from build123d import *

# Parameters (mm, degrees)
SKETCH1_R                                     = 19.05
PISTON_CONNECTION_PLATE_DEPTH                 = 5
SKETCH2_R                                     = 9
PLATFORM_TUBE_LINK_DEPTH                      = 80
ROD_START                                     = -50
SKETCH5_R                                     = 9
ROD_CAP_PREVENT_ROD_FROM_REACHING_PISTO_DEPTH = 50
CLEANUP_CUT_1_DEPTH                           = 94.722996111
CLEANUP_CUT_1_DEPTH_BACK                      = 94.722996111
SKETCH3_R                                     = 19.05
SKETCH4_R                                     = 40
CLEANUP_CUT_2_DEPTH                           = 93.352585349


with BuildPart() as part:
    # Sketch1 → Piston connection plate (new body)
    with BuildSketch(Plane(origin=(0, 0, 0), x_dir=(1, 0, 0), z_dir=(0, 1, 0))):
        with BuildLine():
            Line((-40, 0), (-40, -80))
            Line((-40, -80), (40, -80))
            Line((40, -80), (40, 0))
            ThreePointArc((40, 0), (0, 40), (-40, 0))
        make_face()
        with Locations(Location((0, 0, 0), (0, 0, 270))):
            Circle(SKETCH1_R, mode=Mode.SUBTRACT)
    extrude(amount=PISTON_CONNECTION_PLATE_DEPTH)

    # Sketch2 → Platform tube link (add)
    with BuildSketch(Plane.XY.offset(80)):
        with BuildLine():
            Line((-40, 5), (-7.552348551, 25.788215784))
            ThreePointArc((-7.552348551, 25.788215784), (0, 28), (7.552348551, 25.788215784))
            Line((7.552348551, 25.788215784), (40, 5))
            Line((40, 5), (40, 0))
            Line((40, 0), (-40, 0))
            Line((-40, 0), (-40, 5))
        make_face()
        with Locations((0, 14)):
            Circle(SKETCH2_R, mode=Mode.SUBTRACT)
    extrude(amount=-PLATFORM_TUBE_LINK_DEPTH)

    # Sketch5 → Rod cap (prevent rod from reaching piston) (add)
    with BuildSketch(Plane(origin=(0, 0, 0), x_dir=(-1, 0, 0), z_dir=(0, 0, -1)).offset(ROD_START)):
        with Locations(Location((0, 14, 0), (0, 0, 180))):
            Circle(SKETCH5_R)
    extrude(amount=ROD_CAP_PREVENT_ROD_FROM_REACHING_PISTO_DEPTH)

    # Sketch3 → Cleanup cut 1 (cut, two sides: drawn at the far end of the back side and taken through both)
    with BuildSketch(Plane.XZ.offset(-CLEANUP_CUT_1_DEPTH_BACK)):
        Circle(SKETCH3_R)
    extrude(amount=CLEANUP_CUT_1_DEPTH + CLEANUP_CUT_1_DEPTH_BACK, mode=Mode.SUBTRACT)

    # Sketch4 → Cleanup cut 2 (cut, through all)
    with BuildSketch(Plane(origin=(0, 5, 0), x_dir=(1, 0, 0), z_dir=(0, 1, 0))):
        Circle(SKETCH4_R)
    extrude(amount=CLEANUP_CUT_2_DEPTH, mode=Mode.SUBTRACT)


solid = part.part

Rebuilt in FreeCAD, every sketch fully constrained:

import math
import FreeCAD as App
import Part
import Sketcher

doc = App.newDocument("Part")
body = doc.addObject("PartDesign::Body", "Body")

# Sketch on XZ plane
sketch1 = doc.addObject("Sketcher::SketchObject", "Sketch")
body.addObject(sketch1)
sketch1.AttachmentSupport = (doc.XZ_Plane, [""])
sketch1.MapMode = "FlatFace"
sketch1.addGeometry(Part.LineSegment(App.Vector(-40, 0, 0), App.Vector(-40, 80, 0)), False)
sketch1.addGeometry(Part.LineSegment(App.Vector(-40, 80, 0), App.Vector(40, 80, 0)), False)
sketch1.addGeometry(Part.LineSegment(App.Vector(40, 80, 0), App.Vector(40, 0, 0)), False)
sketch1.addGeometry(Part.ArcOfCircle(Part.Circle(App.Vector(0, 0, 0), App.Vector(0, 0, 1), 40), math.radians(180), math.radians(360)), False)
sketch1.addGeometry(Part.Circle(App.Vector(0, 0, 0), App.Vector(0, 0, 1), 19), False)
sketch1.addConstraint(Sketcher.Constraint("Coincident", 0, 2, 1, 1))
sketch1.addConstraint(Sketcher.Constraint("Coincident", 1, 2, 2, 1))
sketch1.addConstraint(Sketcher.Constraint("Tangent", 2, 2, 3, 2))
sketch1.addConstraint(Sketcher.Constraint("Tangent", 3, 1, 0, 1))
sketch1.addConstraint(Sketcher.Constraint("Vertical", 0))
sketch1.addConstraint(Sketcher.Constraint("Horizontal", 1))
sketch1.addConstraint(Sketcher.Constraint("Vertical", 2))
sketch1.addConstraint(Sketcher.Constraint("Coincident", 3, 3, -1, 1))
sketch1.addConstraint(Sketcher.Constraint("Coincident", 4, 3, -1, 1))
sketch1.addConstraint(Sketcher.Constraint("Equal", 1, 0))
sketch1.addConstraint(Sketcher.Constraint("Radius", 3, 40.0))
sketch1.addConstraint(Sketcher.Constraint("Diameter", 4, 38.1))
pad1 = doc.addObject("PartDesign::Pad", "Pad")
body.addObject(pad1)
pad1.Profile = sketch1
pad1.Length = 5
pad1.Reversed = True

# Sketch on XY plane
sketch2 = doc.addObject("Sketcher::SketchObject", "Sketch001")
body.addObject(sketch2)
sketch2.AttachmentSupport = (doc.XY_Plane, [""])
sketch2.MapMode = "FlatFace"
sketch2.AttachmentOffset = App.Placement(App.Vector(0, 0, 80), App.Rotation())
sketch2.addGeometry(Part.LineSegment(App.Vector(-8, 26, 0), App.Vector(-40, 5, 0)), False)
sketch2.addGeometry(Part.LineSegment(App.Vector(-40, 5, 0), App.Vector(-40, 0, 0)), False)
sketch2.addGeometry(Part.LineSegment(App.Vector(-40, 0, 0), App.Vector(40, 0, 0)), False)
sketch2.addGeometry(Part.LineSegment(App.Vector(40, 0, 0), App.Vector(40, 5, 0)), False)
sketch2.addGeometry(Part.LineSegment(App.Vector(40, 5, 0), App.Vector(8, 26, 0)), False)
sketch2.addGeometry(Part.ArcOfCircle(Part.Circle(App.Vector(0, 14, 0), App.Vector(0, 0, 1), 14), math.radians(57), math.radians(123)), False)
sketch2.addGeometry(Part.Circle(App.Vector(0, 14, 0), App.Vector(0, 0, 1), 9), False)
sketch2.addConstraint(Sketcher.Constraint("Coincident", 0, 2, 1, 1))
sketch2.addConstraint(Sketcher.Constraint("Coincident", 1, 2, 2, 1))
sketch2.addConstraint(Sketcher.Constraint("Coincident", 2, 2, 3, 1))
sketch2.addConstraint(Sketcher.Constraint("Coincident", 3, 2, 4, 1))
sketch2.addConstraint(Sketcher.Constraint("Tangent", 4, 2, 5, 1))
sketch2.addConstraint(Sketcher.Constraint("Tangent", 5, 2, 0, 1))
sketch2.addConstraint(Sketcher.Constraint("Vertical", 1))
sketch2.addConstraint(Sketcher.Constraint("Horizontal", 2))
sketch2.addConstraint(Sketcher.Constraint("Vertical", 3))
sketch2.addConstraint(Sketcher.Constraint("Coincident", 6, 3, 5, 3))
sketch2.addConstraint(Sketcher.Constraint("Symmetric", 1, 2, 2, 2, -1, 1))
sketch2.addConstraint(Sketcher.Constraint("Symmetric", 4, 2, 5, 2, -2))
sketch2.addConstraint(Sketcher.Constraint("Diameter", 6, 18.0))
sketch2.addConstraint(Sketcher.Constraint("Radius", 5, 14.0))
sketch2.addConstraint(Sketcher.Constraint("DistanceX", 2, 1, 2, 2, 80.0))
sketch2.addConstraint(Sketcher.Constraint("DistanceY", 1, 2, 1, 1, 5.0))
sketch2.addConstraint(Sketcher.Constraint("DistanceY", -1, 1, 5, 3, 14.0))
pad2 = doc.addObject("PartDesign::Pad", "Pad001")
body.addObject(pad2)
pad2.Profile = sketch2
pad2.Length = 80
pad2.Reversed = True

# Sketch on XY plane
sketch3 = doc.addObject("Sketcher::SketchObject", "Sketch002")
body.addObject(sketch3)
sketch3.AttachmentSupport = (doc.XY_Plane, [""])
sketch3.MapMode = "FlatFace"
sketch3.AttachmentOffset = App.Placement(App.Vector(0, 0, 50), App.Rotation())
sketch3.addGeometry(Part.Circle(App.Vector(0, 14, 0), App.Vector(0, 0, 1), 9), False)
sketch3.addConstraint(Sketcher.Constraint("PointOnObject", 0, 3, -2))
sketch3.addConstraint(Sketcher.Constraint("Diameter", 0, 18.0))
sketch3.addConstraint(Sketcher.Constraint("DistanceY", -1, 1, 0, 3, 14.0))
pad3 = doc.addObject("PartDesign::Pad", "Pad002")
body.addObject(pad3)
pad3.Profile = sketch3
pad3.Length = 50
pad3.Reversed = True

# Sketch on XZ plane
sketch4 = doc.addObject("Sketcher::SketchObject", "Sketch003")
body.addObject(sketch4)
sketch4.AttachmentSupport = (doc.XZ_Plane, [""])
sketch4.MapMode = "FlatFace"
sketch4.addGeometry(Part.Circle(App.Vector(0, 0, 0), App.Vector(0, 0, 1), 19), False)
sketch4.addConstraint(Sketcher.Constraint("Coincident", 0, 3, -1, 1))
sketch4.addConstraint(Sketcher.Constraint("Diameter", 0, 38.1))
pocket1 = doc.addObject("PartDesign::Pocket", "Pocket")
body.addObject(pocket1)
pocket1.Profile = sketch4
pocket1.Type = "ThroughAll"
pocket1.Midplane = True

# Sketch on XZ plane
sketch5 = doc.addObject("Sketcher::SketchObject", "Sketch004")
body.addObject(sketch5)
sketch5.AttachmentSupport = (doc.XZ_Plane, [""])
sketch5.MapMode = "FlatFace"
sketch5.AttachmentOffset = App.Placement(App.Vector(0, 0, -5), App.Rotation())
sketch5.addGeometry(Part.Circle(App.Vector(0, 0, 0), App.Vector(0, 0, 1), 40), False)
sketch5.addConstraint(Sketcher.Constraint("Coincident", 0, 3, -1, 1))
sketch5.addConstraint(Sketcher.Constraint("Diameter", 0, 80.0))
pocket2 = doc.addObject("PartDesign::Pocket", "Pocket001")
body.addObject(pocket2)
pocket2.Profile = sketch5
pocket2.Type = "ThroughAll"

doc.recompute()
